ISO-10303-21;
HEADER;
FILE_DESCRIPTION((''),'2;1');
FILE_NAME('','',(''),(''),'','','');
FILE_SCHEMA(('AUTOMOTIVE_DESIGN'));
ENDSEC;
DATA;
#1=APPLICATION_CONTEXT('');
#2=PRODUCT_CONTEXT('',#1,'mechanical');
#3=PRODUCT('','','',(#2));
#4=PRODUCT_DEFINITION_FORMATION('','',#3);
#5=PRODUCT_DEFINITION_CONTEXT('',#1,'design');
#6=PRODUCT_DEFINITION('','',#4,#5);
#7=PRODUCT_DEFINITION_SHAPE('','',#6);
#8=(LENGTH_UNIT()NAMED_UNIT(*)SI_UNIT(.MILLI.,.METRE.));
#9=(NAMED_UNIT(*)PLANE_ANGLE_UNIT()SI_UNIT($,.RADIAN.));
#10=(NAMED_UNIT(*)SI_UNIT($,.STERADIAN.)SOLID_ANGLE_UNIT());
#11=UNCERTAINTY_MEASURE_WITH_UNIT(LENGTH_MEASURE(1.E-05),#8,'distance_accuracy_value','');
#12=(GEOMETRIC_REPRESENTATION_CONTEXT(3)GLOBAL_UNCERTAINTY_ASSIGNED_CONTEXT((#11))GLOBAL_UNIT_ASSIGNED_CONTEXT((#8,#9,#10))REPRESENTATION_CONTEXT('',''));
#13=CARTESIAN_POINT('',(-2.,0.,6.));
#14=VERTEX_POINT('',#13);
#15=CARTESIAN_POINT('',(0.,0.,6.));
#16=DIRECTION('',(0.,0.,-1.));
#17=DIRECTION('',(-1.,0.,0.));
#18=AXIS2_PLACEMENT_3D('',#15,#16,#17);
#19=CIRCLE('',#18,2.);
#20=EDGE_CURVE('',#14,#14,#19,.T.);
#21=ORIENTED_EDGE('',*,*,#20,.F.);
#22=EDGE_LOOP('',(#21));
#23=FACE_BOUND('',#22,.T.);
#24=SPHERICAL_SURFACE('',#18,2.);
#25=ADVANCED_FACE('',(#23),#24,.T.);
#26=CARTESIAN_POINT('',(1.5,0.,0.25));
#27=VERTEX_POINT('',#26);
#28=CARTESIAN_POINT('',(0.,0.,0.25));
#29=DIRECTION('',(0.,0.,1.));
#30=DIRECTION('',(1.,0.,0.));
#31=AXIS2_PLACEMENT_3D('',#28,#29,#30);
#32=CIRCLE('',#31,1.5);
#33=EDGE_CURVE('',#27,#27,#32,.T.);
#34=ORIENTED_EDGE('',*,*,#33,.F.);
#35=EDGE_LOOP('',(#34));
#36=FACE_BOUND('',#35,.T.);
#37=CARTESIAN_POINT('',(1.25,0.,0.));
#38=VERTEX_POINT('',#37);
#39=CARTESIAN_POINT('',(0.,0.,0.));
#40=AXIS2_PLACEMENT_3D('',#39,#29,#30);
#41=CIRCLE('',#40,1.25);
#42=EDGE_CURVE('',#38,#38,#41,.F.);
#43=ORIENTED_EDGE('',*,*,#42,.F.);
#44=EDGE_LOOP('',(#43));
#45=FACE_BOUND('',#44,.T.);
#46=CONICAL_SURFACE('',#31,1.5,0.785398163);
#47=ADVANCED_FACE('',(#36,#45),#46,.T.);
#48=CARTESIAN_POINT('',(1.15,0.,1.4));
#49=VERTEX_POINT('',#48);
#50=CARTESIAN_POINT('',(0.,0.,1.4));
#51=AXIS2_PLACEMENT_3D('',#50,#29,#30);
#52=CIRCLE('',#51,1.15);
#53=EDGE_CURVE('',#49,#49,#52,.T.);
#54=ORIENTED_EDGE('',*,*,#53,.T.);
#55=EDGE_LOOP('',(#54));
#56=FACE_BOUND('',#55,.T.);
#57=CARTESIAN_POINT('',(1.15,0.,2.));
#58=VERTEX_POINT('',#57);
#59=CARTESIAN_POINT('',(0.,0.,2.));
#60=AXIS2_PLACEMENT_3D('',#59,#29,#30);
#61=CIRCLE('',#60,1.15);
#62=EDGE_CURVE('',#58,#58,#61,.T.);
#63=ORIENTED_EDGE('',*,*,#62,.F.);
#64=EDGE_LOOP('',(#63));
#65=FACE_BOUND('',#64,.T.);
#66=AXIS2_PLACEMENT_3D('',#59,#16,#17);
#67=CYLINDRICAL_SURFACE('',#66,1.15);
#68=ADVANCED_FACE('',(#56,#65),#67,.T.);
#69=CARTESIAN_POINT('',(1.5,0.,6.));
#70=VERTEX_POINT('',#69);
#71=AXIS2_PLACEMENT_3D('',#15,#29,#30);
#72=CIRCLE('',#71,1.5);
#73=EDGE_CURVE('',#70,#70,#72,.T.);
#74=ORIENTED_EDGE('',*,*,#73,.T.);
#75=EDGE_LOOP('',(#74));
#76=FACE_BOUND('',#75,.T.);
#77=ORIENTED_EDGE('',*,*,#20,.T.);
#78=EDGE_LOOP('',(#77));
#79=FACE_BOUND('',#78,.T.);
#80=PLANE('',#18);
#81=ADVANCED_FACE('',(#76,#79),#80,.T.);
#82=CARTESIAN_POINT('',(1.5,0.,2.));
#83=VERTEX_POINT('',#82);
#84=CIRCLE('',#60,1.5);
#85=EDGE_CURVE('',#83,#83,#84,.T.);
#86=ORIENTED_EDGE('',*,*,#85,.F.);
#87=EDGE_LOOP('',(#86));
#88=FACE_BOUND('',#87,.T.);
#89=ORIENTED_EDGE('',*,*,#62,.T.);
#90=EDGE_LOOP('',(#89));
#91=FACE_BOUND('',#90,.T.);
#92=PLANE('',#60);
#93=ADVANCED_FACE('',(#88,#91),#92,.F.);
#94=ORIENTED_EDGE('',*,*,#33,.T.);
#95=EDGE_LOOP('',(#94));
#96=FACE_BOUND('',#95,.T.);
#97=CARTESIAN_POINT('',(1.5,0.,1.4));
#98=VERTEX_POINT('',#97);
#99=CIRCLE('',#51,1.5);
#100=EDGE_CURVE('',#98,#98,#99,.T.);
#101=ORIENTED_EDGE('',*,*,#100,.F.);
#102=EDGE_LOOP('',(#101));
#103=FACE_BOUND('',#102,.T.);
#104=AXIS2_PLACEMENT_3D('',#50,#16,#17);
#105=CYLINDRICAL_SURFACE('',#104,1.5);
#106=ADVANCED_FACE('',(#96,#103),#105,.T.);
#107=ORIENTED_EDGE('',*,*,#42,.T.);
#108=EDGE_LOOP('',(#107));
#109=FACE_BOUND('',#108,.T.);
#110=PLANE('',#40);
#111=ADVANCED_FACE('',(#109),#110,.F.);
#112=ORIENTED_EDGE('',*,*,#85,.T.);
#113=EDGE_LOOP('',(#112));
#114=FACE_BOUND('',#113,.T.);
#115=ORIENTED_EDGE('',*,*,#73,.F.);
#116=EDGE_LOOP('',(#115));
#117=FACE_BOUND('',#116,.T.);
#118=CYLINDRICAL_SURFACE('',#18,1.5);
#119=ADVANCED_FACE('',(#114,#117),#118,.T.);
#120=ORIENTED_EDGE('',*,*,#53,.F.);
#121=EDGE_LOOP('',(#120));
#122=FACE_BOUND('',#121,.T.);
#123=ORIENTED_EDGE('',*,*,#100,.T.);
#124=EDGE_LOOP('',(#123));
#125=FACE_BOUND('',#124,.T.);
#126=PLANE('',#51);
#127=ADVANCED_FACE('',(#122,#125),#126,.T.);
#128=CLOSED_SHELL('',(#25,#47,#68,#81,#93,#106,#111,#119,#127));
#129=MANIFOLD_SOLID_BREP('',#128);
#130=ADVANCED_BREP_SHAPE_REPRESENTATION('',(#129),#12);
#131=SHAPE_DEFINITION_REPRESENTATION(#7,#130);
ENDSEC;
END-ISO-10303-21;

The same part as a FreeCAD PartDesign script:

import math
import FreeCAD as App
import Part
import Sketcher
Q = App.Units.Quantity


def edges_at(feature, points):
    """Names of the edges that pass closest to the given points."""
    edges = feature.Shape.Edges
    near = lambda p: min(range(len(edges)), key=lambda i: edges[i].distToShape(Part.Vertex(*p))[0])
    return sorted({f"Edge{near(p) + 1}" for p in points})

doc = App.newDocument("Part")
body = doc.addObject("PartDesign::Body", "Body")

# Sketch on XY plane
sketch1 = body.newObject("Sketcher::SketchObject", "Sketch")
sketch1.AttachmentSupport = (doc.getObject("XY_Plane"), [""])
sketch1.MapMode = "FlatFace"
sketch1.addGeometry(Part.Circle(App.Vector(0, 0, 0), App.Vector(0, 0, 1), 1.5), False)
sketch1.addConstraint([
    Sketcher.Constraint("Coincident", 0, 3, -1, 1),
    Sketcher.Constraint("Diameter", 0, Q("3 mm")),
])
pad1 = body.newObject("PartDesign::Pad", "Pad")
pad1.Profile = sketch1
pad1.Length = 1.4

# Sketch on XY plane
sketch2 = body.newObject("Sketcher::SketchObject", "Sketch001")
sketch2.AttachmentSupport = (doc.getObject("XY_Plane"), [""])
sketch2.MapMode = "FlatFace"
sketch2.AttachmentOffset = App.Placement(App.Vector(0, 0, 1.4), App.Rotation())
sketch2.addGeometry(Part.Circle(App.Vector(0, 0, 0), App.Vector(0, 0, 1), 1.1), False)
sketch2.addConstraint([
    Sketcher.Constraint("Coincident", 0, 3, -1, 1),
    Sketcher.Constraint("Diameter", 0, Q("2.3 mm")),
])
pad2 = body.newObject("PartDesign::Pad", "Pad001")
pad2.Profile = sketch2
pad2.Length = 0.6

# Sketch on XY plane
sketch3 = body.newObject("Sketcher::SketchObject", "Sketch002")
sketch3.AttachmentSupport = (doc.getObject("XY_Plane"), [""])
sketch3.MapMode = "FlatFace"
sketch3.AttachmentOffset = App.Placement(App.Vector(0, 0, 2), App.Rotation())
sketch3.addGeometry(Part.Circle(App.Vector(0, 0, 0), App.Vector(0, 0, 1), 1.5), False)
sketch3.addConstraint([
    Sketcher.Constraint("Coincident", 0, 3, -1, 1),
    Sketcher.Constraint("Diameter", 0, Q("3 mm")),
])
pad3 = body.newObject("PartDesign::Pad", "Pad002")
pad3.Profile = sketch3
pad3.Length = 4

# Sketch on XY plane
sketch4 = body.newObject("Sketcher::SketchObject", "Sketch003")
sketch4.AttachmentSupport = (doc.getObject("XY_Plane"), [""])
sketch4.MapMode = "FlatFace"
sketch4.AttachmentOffset = App.Placement(App.Vector(0, 0, 6), App.Rotation())
sketch4.addGeometry([
    Part.LineSegment(App.Vector(0, 2, 0), App.Vector(0, -2, 0)),
    Part.ArcOfCircle(Part.Circle(App.Vector(0, 0, 0), App.Vector(0, 0, 1), 2), math.radians(-90), math.radians(90)),
], False)
sketch4.addConstraint([
    Sketcher.Constraint("Coincident", 0, 1, 1, 2),
    Sketcher.Constraint("Coincident", 1, 1, 0, 2),
    Sketcher.Constraint("Vertical", 0),
    Sketcher.Constraint("Coincident", 1, 3, -1, 1),
    Sketcher.Constraint("PointOnObject", 0, 1, -2),
    Sketcher.Constraint("Radius", 1, Q("2 mm")),
])
revolution = body.newObject("PartDesign::Revolution", "Revolution")
revolution.Profile = sketch4
revolution.ReferenceAxis = (sketch4, ["V_Axis"])
revolution.Angle = 180
revolution.Reversed = True
doc.recompute()

chamfer = body.newObject("PartDesign::Chamfer", "Chamfer")
chamfer.Base = (revolution, edges_at(revolution, [(-1.5, 0, 0)]))
chamfer.Size = 0.25

doc.recompute()
